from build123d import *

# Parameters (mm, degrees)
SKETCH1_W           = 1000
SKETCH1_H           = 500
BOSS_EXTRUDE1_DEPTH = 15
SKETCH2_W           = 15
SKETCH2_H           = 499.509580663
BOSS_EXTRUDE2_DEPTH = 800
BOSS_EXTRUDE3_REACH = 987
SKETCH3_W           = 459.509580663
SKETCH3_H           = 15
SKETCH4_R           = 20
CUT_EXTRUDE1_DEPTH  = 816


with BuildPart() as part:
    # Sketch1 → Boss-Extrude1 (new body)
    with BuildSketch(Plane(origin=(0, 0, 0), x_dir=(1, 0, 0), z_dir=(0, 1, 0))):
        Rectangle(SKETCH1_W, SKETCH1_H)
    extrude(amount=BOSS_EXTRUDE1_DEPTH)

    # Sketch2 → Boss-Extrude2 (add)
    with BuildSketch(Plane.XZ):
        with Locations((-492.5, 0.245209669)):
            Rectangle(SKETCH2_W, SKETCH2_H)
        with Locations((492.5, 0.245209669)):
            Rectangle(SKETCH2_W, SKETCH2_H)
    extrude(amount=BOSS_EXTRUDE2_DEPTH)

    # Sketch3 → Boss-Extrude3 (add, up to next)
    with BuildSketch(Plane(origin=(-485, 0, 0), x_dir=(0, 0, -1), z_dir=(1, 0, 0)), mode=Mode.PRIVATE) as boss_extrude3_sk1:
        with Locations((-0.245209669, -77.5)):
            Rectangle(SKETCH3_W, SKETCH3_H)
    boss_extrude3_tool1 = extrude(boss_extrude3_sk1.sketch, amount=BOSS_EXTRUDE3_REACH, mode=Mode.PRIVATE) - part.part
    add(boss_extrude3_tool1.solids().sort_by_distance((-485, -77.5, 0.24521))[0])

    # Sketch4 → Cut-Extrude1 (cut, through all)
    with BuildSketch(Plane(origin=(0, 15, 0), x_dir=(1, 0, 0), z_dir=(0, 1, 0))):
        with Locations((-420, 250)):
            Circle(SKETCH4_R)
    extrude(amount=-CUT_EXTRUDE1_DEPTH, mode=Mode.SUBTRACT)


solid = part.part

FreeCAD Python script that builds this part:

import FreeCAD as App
import Part
import Sketcher
from FreeCAD import Vector
Q = App.Units.Quantity


def add_polygon(sketch, points):
    """Adds a closed chain of lines whose ends are joined by coincident constraints."""
    first, n = sketch.GeometryCount, len(points)
    for a, b in zip(points, points[1:] + points[:1]):
        sketch.addGeometry(Part.LineSegment(App.Vector(*a, 0), App.Vector(*b, 0)), False)
    for i in range(n):
        sketch.addConstraint(Sketcher.Constraint("Coincident", first + i, 2, first + (i + 1) % n, 1))

doc = App.newDocument("Part")
params = doc.addObject("Spreadsheet::Sheet", "Params")
for row, (alias, value) in enumerate([
    ("sketch1_width", "1000 mm"),
    ("sketch1_height", "500 mm"),
    ("pad1_length", "15 mm"),
    ("sketch2_width", "15 mm"),
    ("pad2_length", "800 mm"),
    ("sketch3_width", "15 mm"),
    ("sketch4_diameter", "40 mm"),
], start=1):
    params.set(f"A{row}", alias)
    params.set(f"B{row}", "=" + value)
    params.setAlias(f"B{row}", alias)

body = doc.addObject("PartDesign::Body", "Body")

# Sketch on XZ plane
sketch1 = body.newObject("Sketcher::SketchObject", "Sketch")
sketch1.AttachmentSupport = (doc.getObject("XZ_Plane"), [""])
sketch1.MapMode = "FlatFace"
add_polygon(sketch1, [(-500, -250), (-500, 250), (500, 250), (500, -250)])  # lines 0-3
sketch1.addConstraint([
    Sketcher.Constraint("Vertical", 0),
    Sketcher.Constraint("Horizontal", 1),
    Sketcher.Constraint("Vertical", 2),
    Sketcher.Constraint("Horizontal", 3),
    Sketcher.Constraint("Symmetric", 0, 2, 2, 2, -1, 1),
    Sketcher.Constraint("DistanceX", 1, 1, 1, 2, Q("1000 mm")),
    Sketcher.Constraint("DistanceY", 0, 1, 0, 2, Q("500 mm")),
])
sketch1.setExpression("Constraints[9]", "Params.sketch1_width")
sketch1.setExpression("Constraints[10]", "Params.sketch1_height")
pad1 = body.newObject("PartDesign::Pad", "Pad")
pad1.Profile = sketch1
pad1.setExpression("Length", "Params.pad1_length")
pad1.Reversed = True

# Sketch on XZ plane
sketch2 = body.newObject("Sketcher::SketchObject", "Sketch001")
sketch2.AttachmentSupport = (doc.getObject("XZ_Plane"), [""])
sketch2.MapMode = "FlatFace"
add_polygon(sketch2, [(-500, 250), (-500, -250), (-485, -250), (-485, 250)])  # lines 0-3
add_polygon(sketch2, [(485, 250), (485, -250), (500, -250), (500, 250)])  # lines 4-7
sketch2.addConstraint([
    Sketcher.Constraint("Vertical", 0),
    Sketcher.Constraint("Horizontal", 1),
    Sketcher.Constraint("Vertical", 2),
    Sketcher.Constraint("Horizontal", 3),
    Sketcher.Constraint("Vertical", 4),
    Sketcher.Constraint("Horizontal", 5),
    Sketcher.Constraint("Vertical", 6),
    Sketcher.Constraint("Horizontal", 7),
    Sketcher.Constraint("Symmetric", 1, 2, 4, 2, -2),
    Sketcher.Constraint("Symmetric", 3, 2, 6, 2, -2),
    Sketcher.Constraint("DistanceX", 1, 1, 1, 2, Q("15 mm")),
    Sketcher.Constraint("DistanceX", 0, 2, -1, 1, Q("500 mm")),
    Sketcher.Constraint("DistanceY", -1, 1, 2, 2, Q("250 mm")),
    Sketcher.Constraint("DistanceY", 0, 2, 0, 1, Q("499.509581 mm")),
])
sketch2.setExpression("Constraints[18]", "Params.sketch2_width")
pad2 = body.newObject("PartDesign::Pad", "Pad001")
pad2.Profile = sketch2
pad2.setExpression("Length", "Params.pad2_length")

# Sketch on YZ plane
sketch3 = body.newObject("Sketcher::SketchObject", "Sketch002")
sketch3.AttachmentSupport = (doc.getObject("YZ_Plane"), [""])
sketch3.MapMode = "FlatFace"
sketch3.AttachmentOffset = App.Placement(Vector(0, 0, -485), App.Rotation())
add_polygon(sketch3, [(-70, 230), (-85, 230), (-85, -230), (-70, -230)])  # lines 0-3
sketch3.addConstraint([
    Sketcher.Constraint("Horizontal", 0),
    Sketcher.Constraint("Vertical", 1),
    Sketcher.Constraint("Horizontal", 2),
    Sketcher.Constraint("Vertical", 3),
    Sketcher.Constraint("DistanceX", 0, 2, 0, 1, Q("15 mm")),
    Sketcher.Constraint("DistanceX", 0, 2, -1, 1, Q("85 mm")),
    Sketcher.Constraint("DistanceY", -1, 1, 0, 2, Q("230 mm")),
    Sketcher.Constraint("DistanceY", 1, 2, 1, 1, Q("459.509581 mm")),
])
sketch3.setExpression("Constraints[8]", "Params.sketch3_width")
pad3 = body.newObject("PartDesign::Pad", "Pad002")
pad3.Profile = sketch3
pad3.Type = "UpToFirst"

# Sketch on XZ plane
sketch4 = body.newObject("Sketcher::SketchObject", "Sketch003")
sketch4.AttachmentSupport = (doc.getObject("XZ_Plane"), [""])
sketch4.MapMode = "FlatFace"
sketch4.AttachmentOffset = App.Placement(Vector(0, 0, -15), App.Rotation())
sketch4.addGeometry(Part.Circle(Vector(-420, -250, 0), Vector(0, 0, 1), 20), False)
sketch4.addConstraint([
    Sketcher.Constraint("Diameter", 0, Q("40 mm")),
    Sketcher.Constraint("DistanceX", 0, 3, -1, 1, Q("420 mm")),
    Sketcher.Constraint("DistanceY", 0, 3, -1, 1, Q("250 mm")),
])
sketch4.setExpression("Constraints[0]", "Params.sketch4_diameter")
pocket1 = body.newObject("PartDesign::Pocket", "Pocket")
pocket1.Profile = sketch4
pocket1.Type = "ThroughAll"
pocket1.Reversed = True

doc.recompute()
